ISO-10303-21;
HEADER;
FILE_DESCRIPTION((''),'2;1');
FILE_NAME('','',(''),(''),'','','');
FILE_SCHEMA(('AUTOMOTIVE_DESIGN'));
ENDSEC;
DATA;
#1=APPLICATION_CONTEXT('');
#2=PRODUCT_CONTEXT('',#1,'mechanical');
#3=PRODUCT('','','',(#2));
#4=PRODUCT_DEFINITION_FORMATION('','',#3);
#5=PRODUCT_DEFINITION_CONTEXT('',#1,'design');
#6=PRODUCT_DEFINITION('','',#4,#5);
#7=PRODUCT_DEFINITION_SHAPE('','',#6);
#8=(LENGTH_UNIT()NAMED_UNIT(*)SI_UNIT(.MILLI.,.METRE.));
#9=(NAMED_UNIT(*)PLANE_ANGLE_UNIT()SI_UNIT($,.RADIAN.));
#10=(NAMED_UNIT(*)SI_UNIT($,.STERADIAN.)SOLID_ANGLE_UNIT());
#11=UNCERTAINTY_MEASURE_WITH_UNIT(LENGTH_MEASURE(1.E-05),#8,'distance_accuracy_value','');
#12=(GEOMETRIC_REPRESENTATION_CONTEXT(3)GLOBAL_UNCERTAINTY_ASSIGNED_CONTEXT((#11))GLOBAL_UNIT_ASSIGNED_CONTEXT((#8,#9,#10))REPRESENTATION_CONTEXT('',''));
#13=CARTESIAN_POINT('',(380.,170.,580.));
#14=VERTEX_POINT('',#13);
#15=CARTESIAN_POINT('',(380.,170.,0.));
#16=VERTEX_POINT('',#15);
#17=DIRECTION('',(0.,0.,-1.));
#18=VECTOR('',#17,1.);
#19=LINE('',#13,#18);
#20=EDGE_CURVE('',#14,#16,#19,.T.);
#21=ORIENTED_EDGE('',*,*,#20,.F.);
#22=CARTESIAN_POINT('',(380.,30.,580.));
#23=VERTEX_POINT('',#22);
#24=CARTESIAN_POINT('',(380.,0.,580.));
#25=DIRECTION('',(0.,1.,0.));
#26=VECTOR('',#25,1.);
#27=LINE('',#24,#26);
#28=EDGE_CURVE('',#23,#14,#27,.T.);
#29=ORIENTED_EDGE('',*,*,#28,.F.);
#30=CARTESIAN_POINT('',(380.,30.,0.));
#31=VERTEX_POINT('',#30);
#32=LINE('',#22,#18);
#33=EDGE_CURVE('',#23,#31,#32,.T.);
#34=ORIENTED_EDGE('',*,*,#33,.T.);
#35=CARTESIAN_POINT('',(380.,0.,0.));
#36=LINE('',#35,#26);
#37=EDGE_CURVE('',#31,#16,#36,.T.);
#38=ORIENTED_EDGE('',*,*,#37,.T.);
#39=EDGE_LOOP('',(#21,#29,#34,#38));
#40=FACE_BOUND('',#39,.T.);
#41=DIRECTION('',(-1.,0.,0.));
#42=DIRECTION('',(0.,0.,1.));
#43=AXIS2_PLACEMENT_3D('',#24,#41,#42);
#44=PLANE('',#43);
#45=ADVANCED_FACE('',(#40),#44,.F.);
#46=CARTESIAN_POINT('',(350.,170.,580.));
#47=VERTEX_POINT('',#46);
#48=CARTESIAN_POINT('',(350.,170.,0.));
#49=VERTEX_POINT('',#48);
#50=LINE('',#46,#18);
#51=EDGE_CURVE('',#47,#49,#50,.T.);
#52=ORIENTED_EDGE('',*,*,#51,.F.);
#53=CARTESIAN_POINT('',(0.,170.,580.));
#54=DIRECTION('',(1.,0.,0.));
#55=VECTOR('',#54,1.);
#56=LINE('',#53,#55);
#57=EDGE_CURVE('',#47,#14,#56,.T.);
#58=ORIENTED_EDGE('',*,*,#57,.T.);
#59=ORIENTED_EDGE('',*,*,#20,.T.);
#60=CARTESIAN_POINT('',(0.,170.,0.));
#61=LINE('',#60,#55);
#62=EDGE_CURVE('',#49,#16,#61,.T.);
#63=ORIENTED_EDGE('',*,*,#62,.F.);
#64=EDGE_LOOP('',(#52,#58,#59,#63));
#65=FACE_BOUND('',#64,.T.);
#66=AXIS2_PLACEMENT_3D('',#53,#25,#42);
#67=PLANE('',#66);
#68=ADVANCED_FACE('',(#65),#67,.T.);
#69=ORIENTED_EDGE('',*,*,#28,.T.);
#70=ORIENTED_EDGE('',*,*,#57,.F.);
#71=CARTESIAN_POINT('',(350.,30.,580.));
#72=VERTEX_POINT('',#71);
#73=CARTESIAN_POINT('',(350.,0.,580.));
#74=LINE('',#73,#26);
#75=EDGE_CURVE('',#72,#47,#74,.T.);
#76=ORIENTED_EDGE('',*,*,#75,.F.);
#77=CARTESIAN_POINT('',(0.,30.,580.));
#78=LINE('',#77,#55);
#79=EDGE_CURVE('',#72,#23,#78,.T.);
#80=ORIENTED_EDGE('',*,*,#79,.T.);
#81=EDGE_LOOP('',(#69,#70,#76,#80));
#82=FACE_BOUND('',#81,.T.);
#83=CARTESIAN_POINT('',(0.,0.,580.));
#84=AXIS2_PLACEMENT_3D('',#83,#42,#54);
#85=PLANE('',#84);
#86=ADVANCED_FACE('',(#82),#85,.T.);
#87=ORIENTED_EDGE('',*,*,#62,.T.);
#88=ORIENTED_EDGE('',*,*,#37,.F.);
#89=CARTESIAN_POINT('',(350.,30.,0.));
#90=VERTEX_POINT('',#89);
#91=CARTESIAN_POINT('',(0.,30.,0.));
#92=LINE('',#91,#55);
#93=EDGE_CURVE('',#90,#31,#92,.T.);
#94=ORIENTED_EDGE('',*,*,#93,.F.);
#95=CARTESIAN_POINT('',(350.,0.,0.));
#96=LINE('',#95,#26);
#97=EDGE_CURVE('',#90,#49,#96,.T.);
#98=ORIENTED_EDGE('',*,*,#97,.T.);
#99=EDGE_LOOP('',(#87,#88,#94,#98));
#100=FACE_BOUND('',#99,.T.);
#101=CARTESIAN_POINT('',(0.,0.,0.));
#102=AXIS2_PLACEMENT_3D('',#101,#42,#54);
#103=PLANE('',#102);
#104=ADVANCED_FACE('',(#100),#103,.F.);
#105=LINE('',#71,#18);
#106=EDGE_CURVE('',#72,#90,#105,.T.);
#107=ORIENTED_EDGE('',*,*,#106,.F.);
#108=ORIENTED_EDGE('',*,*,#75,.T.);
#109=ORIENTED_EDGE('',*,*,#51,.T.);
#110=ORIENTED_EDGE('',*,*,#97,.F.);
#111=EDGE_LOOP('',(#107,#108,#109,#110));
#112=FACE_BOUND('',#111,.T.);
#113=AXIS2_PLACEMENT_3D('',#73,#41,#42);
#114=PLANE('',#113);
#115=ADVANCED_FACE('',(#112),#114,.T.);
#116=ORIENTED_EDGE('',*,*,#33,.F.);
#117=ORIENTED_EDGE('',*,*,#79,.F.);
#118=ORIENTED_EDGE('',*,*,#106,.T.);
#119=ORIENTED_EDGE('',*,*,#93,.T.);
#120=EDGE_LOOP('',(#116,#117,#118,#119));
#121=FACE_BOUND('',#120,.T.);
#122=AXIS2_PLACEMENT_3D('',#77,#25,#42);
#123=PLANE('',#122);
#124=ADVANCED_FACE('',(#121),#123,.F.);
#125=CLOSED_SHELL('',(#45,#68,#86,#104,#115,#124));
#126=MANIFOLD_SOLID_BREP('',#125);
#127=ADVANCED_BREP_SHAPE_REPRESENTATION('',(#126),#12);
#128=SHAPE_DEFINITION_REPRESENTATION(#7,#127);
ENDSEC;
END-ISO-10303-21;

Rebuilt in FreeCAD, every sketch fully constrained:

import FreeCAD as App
import Part
import Sketcher

doc = App.newDocument("Part")
body = doc.addObject("PartDesign::Body", "Body")

# Sketch on XY plane
sketch1 = doc.addObject("Sketcher::SketchObject", "Sketch")
body.addObject(sketch1)
sketch1.AttachmentSupport = (doc.XY_Plane, [""])
sketch1.MapMode = "FlatFace"
sketch1.addGeometry([
    Part.LineSegment(App.Vector(350, 170, 0), App.Vector(350, 30, 0)),
    Part.LineSegment(App.Vector(350, 30, 0), App.Vector(380, 30, 0)),
    Part.LineSegment(App.Vector(380, 30, 0), App.Vector(380, 170, 0)),
    Part.LineSegment(App.Vector(380, 170, 0), App.Vector(350, 170, 0)),
], False)
sketch1.addConstraint([
    Sketcher.Constraint("Coincident", 0, 2, 1, 1),
    Sketcher.Constraint("Coincident", 1, 2, 2, 1),
    Sketcher.Constraint("Coincident", 2, 2, 3, 1),
    Sketcher.Constraint("Coincident", 3, 2, 0, 1),
    Sketcher.Constraint("Vertical", 0),
    Sketcher.Constraint("Horizontal", 1),
    Sketcher.Constraint("Vertical", 2),
    Sketcher.Constraint("Horizontal", 3),
    Sketcher.Constraint("DistanceX", 1, 1, 1, 2, 30.0),
    Sketcher.Constraint("DistanceY", 0, 2, 0, 1, 140.0),
    Sketcher.Constraint("DistanceX", -1, 1, 0, 2, 350.0),
    Sketcher.Constraint("DistanceY", -1, 1, 0, 2, 30.0),
])
pad1 = doc.addObject("PartDesign::Pad", "Pad")
body.addObject(pad1)
pad1.Profile = sketch1
pad1.Length = 580

doc.recompute()
